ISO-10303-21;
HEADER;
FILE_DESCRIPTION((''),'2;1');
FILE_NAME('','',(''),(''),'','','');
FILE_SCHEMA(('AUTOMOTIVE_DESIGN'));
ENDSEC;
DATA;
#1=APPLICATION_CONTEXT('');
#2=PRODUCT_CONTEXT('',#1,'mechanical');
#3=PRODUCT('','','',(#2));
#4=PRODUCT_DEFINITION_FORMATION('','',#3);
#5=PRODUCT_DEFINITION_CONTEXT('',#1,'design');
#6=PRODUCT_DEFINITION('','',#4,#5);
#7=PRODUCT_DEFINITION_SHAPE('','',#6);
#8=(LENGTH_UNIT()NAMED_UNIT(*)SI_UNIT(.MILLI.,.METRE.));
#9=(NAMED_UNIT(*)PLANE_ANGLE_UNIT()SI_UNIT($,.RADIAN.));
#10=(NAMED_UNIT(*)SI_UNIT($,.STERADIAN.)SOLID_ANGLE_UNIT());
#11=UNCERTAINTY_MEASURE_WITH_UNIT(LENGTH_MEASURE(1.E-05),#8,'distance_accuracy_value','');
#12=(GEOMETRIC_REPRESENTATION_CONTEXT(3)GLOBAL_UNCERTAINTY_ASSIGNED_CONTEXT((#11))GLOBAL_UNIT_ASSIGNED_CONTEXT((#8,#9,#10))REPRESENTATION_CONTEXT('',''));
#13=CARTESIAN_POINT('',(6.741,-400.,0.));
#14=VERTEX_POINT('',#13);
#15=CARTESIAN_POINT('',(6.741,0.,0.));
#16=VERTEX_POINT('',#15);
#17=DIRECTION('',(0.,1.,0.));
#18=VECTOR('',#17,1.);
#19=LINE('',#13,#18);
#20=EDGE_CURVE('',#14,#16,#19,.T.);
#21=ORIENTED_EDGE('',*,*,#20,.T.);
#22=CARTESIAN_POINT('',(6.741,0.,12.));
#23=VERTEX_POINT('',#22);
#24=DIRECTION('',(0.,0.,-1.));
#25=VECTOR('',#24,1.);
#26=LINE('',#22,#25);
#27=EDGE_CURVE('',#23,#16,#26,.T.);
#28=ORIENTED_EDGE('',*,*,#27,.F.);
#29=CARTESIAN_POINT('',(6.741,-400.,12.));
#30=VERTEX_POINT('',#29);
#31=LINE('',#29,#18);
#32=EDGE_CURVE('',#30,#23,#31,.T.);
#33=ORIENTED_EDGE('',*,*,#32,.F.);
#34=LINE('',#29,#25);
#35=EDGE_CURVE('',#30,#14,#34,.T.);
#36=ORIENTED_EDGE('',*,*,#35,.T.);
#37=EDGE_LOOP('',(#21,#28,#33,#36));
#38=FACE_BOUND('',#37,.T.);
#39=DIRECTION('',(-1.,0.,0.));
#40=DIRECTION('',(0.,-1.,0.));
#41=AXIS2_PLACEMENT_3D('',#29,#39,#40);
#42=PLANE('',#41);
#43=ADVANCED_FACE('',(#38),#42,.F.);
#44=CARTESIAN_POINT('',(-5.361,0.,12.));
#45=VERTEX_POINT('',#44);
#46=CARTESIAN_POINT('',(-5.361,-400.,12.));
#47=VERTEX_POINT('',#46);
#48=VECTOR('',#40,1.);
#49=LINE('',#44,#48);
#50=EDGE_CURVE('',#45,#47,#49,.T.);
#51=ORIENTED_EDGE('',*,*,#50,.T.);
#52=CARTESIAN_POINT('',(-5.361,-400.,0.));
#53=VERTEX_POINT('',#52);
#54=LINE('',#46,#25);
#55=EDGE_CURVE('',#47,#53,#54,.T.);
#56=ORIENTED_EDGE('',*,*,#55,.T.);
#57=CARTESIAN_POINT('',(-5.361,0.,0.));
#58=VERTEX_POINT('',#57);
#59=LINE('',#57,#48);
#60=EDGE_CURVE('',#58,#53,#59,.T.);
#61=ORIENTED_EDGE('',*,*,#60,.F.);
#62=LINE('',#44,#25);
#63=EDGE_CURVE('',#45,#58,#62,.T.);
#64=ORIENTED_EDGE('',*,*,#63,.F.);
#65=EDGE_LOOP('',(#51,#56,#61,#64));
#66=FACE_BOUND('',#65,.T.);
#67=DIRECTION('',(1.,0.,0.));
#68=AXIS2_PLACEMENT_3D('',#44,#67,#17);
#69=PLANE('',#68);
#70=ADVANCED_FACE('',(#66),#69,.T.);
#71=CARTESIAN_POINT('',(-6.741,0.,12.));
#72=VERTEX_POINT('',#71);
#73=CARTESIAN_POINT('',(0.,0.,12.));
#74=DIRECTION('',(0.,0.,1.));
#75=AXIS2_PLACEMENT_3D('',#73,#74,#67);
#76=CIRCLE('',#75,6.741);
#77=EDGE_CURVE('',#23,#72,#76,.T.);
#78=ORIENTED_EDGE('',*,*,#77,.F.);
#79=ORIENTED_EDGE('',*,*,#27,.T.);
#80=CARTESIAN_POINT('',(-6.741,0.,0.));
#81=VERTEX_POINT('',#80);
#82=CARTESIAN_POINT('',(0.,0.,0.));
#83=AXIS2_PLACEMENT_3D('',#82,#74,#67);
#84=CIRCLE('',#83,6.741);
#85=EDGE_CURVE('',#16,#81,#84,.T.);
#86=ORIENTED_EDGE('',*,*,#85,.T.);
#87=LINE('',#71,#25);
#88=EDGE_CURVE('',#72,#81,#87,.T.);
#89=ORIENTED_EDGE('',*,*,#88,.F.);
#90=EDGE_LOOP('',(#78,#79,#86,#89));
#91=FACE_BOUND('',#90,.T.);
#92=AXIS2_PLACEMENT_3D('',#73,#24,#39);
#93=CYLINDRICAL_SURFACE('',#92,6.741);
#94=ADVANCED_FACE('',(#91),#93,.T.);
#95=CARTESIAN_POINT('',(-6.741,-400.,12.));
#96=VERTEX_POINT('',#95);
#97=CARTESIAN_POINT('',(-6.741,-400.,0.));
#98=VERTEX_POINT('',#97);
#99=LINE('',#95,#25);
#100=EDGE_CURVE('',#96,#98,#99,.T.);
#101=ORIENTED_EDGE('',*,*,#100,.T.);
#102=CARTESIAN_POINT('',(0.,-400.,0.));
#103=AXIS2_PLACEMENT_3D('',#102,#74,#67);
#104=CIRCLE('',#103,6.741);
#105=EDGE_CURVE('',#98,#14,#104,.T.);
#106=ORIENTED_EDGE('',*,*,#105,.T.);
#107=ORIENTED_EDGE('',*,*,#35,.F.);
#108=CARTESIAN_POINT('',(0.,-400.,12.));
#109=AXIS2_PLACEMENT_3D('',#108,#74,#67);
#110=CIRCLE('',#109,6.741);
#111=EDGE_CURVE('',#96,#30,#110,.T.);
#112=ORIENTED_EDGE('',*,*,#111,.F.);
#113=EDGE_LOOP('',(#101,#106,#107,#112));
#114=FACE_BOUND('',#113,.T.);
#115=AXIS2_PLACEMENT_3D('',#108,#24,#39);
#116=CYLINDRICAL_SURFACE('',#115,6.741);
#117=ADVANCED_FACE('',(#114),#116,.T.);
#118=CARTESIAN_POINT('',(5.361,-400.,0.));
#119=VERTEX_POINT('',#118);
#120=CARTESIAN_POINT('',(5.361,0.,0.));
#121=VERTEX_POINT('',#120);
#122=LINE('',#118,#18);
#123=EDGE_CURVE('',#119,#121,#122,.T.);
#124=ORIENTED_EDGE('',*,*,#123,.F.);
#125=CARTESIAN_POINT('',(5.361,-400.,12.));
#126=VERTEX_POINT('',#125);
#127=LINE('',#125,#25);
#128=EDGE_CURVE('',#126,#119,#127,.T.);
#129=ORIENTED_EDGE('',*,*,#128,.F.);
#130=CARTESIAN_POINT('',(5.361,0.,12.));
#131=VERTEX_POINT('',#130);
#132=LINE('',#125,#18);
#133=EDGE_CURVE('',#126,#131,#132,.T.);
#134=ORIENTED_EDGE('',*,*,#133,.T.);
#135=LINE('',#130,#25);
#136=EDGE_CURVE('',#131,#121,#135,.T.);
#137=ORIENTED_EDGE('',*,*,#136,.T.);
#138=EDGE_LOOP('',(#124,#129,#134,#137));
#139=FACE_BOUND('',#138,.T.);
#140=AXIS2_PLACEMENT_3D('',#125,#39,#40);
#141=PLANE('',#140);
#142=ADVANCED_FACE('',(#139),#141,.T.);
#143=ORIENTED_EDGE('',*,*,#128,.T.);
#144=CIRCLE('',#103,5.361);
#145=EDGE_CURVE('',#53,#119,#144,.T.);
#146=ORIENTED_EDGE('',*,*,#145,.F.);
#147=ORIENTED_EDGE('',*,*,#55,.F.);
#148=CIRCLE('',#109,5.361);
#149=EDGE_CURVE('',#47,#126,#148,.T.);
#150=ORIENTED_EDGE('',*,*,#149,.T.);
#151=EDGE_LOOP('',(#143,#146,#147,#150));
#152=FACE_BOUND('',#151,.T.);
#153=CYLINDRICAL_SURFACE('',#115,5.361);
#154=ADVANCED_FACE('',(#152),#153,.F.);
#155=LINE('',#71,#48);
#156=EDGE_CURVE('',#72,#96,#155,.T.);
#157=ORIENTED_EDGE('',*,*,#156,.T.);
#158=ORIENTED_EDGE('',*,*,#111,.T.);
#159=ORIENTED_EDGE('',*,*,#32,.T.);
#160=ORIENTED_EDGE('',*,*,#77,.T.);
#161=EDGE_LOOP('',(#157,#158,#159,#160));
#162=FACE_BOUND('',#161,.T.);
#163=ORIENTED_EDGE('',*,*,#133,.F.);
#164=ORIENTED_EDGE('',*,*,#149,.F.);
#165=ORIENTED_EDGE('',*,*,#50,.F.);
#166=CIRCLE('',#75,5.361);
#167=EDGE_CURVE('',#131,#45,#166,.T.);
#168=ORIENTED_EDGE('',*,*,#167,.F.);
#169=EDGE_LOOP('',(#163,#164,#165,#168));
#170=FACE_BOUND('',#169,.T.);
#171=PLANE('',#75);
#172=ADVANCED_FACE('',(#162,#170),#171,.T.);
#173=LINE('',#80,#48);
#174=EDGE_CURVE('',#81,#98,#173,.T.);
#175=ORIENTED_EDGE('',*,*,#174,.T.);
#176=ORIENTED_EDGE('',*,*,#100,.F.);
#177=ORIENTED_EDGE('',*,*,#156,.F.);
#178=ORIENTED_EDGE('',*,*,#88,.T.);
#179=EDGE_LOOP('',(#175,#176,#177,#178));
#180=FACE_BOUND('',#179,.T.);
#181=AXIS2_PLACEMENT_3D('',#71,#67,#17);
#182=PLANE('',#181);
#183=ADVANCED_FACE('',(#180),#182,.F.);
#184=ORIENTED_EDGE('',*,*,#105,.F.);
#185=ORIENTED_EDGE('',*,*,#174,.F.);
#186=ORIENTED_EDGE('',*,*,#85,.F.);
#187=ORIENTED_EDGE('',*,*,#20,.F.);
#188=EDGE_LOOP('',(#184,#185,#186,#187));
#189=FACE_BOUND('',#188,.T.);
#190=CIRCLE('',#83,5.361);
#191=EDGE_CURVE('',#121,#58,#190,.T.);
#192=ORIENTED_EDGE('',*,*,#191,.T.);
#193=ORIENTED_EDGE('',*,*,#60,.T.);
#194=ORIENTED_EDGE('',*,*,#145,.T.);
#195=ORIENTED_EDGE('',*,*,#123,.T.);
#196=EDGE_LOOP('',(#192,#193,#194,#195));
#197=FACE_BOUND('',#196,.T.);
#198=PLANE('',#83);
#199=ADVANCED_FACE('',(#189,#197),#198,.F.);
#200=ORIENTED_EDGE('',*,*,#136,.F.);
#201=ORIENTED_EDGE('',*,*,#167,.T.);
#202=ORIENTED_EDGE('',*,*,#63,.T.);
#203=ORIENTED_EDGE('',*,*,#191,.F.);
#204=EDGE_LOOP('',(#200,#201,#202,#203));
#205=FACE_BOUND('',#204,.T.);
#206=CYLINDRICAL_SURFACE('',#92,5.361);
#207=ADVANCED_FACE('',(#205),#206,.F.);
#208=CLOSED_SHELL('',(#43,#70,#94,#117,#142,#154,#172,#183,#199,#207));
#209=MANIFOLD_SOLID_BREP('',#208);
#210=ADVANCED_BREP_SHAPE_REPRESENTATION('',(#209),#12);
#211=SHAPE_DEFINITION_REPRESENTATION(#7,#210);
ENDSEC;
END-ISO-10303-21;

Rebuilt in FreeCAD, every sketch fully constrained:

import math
import FreeCAD as App
import Part
import Sketcher
Q = App.Units.Quantity

doc = App.newDocument("Part")
body = doc.addObject("PartDesign::Body", "Body")

# Sketch on XY plane
sketch1 = body.newObject("Sketcher::SketchObject", "Sketch")
sketch1.AttachmentSupport = (doc.getObject("XY_Plane"), [""])
sketch1.MapMode = "FlatFace"
sketch1.addGeometry(Part.LineSegment(App.Vector(7, -400, 0), App.Vector(7, 0, 0)), False)
sketch1.addGeometry(Part.ArcOfCircle(Part.Circle(App.Vector(0, 0, 0), App.Vector(0, 0, 1), 7), math.radians(0), math.radians(180)), False)
sketch1.addGeometry(Part.LineSegment(App.Vector(-7, 0, 0), App.Vector(-7, -400, 0)), False)
sketch1.addGeometry(Part.ArcOfCircle(Part.Circle(App.Vector(0, -400, 0), App.Vector(0, 0, 1), 7), math.radians(180), math.radians(360)), False)
sketch1.addGeometry(Part.LineSegment(App.Vector(5, 0, 0), App.Vector(5, -400, 0)), False)
sketch1.addGeometry(Part.ArcOfCircle(Part.Circle(App.Vector(0, -400, 0), App.Vector(0, 0, 1), 5), math.radians(180), math.radians(360)), False)
sketch1.addGeometry(Part.LineSegment(App.Vector(-5, -400, 0), App.Vector(-5, 0, 0)), False)
sketch1.addGeometry(Part.ArcOfCircle(Part.Circle(App.Vector(0, 0, 0), App.Vector(0, 0, 1), 5), math.radians(0), math.radians(180)), False)
sketch1.addConstraint(Sketcher.Constraint("Tangent", 0, 2, 1, 1))
sketch1.addConstraint(Sketcher.Constraint("Tangent", 1, 2, 2, 1))
sketch1.addConstraint(Sketcher.Constraint("Tangent", 2, 2, 3, 1))
sketch1.addConstraint(Sketcher.Constraint("Tangent", 3, 2, 0, 1))
sketch1.addConstraint(Sketcher.Constraint("Tangent", 4, 2, 5, 2))
sketch1.addConstraint(Sketcher.Constraint("Tangent", 5, 1, 6, 1))
sketch1.addConstraint(Sketcher.Constraint("Tangent", 6, 2, 7, 2))
sketch1.addConstraint(Sketcher.Constraint("Tangent", 7, 1, 4, 1))
sketch1.addConstraint(Sketcher.Constraint("Vertical", 0))
sketch1.addConstraint(Sketcher.Constraint("Vertical", 2))
sketch1.addConstraint(Sketcher.Constraint("Vertical", 4))
sketch1.addConstraint(Sketcher.Constraint("Vertical", 6))
sketch1.addConstraint(Sketcher.Constraint("Coincident", 1, 3, -1, 1))
sketch1.addConstraint(Sketcher.Constraint("Coincident", 7, 3, -1, 1))
sketch1.addConstraint(Sketcher.Constraint("Horizontal", 5, 3, 2, 2))
sketch1.addConstraint(Sketcher.Constraint("DistanceY", 0, 1, 0, 2, Q("400 mm")))
sketch1.addConstraint(Sketcher.Constraint("Radius", 1, Q("6.741 mm")))
sketch1.addConstraint(Sketcher.Constraint("Radius", 5, Q("5.361 mm")))
pad1 = body.newObject("PartDesign::Pad", "Pad")
pad1.Profile = sketch1
pad1.Length = 12

doc.recompute()
